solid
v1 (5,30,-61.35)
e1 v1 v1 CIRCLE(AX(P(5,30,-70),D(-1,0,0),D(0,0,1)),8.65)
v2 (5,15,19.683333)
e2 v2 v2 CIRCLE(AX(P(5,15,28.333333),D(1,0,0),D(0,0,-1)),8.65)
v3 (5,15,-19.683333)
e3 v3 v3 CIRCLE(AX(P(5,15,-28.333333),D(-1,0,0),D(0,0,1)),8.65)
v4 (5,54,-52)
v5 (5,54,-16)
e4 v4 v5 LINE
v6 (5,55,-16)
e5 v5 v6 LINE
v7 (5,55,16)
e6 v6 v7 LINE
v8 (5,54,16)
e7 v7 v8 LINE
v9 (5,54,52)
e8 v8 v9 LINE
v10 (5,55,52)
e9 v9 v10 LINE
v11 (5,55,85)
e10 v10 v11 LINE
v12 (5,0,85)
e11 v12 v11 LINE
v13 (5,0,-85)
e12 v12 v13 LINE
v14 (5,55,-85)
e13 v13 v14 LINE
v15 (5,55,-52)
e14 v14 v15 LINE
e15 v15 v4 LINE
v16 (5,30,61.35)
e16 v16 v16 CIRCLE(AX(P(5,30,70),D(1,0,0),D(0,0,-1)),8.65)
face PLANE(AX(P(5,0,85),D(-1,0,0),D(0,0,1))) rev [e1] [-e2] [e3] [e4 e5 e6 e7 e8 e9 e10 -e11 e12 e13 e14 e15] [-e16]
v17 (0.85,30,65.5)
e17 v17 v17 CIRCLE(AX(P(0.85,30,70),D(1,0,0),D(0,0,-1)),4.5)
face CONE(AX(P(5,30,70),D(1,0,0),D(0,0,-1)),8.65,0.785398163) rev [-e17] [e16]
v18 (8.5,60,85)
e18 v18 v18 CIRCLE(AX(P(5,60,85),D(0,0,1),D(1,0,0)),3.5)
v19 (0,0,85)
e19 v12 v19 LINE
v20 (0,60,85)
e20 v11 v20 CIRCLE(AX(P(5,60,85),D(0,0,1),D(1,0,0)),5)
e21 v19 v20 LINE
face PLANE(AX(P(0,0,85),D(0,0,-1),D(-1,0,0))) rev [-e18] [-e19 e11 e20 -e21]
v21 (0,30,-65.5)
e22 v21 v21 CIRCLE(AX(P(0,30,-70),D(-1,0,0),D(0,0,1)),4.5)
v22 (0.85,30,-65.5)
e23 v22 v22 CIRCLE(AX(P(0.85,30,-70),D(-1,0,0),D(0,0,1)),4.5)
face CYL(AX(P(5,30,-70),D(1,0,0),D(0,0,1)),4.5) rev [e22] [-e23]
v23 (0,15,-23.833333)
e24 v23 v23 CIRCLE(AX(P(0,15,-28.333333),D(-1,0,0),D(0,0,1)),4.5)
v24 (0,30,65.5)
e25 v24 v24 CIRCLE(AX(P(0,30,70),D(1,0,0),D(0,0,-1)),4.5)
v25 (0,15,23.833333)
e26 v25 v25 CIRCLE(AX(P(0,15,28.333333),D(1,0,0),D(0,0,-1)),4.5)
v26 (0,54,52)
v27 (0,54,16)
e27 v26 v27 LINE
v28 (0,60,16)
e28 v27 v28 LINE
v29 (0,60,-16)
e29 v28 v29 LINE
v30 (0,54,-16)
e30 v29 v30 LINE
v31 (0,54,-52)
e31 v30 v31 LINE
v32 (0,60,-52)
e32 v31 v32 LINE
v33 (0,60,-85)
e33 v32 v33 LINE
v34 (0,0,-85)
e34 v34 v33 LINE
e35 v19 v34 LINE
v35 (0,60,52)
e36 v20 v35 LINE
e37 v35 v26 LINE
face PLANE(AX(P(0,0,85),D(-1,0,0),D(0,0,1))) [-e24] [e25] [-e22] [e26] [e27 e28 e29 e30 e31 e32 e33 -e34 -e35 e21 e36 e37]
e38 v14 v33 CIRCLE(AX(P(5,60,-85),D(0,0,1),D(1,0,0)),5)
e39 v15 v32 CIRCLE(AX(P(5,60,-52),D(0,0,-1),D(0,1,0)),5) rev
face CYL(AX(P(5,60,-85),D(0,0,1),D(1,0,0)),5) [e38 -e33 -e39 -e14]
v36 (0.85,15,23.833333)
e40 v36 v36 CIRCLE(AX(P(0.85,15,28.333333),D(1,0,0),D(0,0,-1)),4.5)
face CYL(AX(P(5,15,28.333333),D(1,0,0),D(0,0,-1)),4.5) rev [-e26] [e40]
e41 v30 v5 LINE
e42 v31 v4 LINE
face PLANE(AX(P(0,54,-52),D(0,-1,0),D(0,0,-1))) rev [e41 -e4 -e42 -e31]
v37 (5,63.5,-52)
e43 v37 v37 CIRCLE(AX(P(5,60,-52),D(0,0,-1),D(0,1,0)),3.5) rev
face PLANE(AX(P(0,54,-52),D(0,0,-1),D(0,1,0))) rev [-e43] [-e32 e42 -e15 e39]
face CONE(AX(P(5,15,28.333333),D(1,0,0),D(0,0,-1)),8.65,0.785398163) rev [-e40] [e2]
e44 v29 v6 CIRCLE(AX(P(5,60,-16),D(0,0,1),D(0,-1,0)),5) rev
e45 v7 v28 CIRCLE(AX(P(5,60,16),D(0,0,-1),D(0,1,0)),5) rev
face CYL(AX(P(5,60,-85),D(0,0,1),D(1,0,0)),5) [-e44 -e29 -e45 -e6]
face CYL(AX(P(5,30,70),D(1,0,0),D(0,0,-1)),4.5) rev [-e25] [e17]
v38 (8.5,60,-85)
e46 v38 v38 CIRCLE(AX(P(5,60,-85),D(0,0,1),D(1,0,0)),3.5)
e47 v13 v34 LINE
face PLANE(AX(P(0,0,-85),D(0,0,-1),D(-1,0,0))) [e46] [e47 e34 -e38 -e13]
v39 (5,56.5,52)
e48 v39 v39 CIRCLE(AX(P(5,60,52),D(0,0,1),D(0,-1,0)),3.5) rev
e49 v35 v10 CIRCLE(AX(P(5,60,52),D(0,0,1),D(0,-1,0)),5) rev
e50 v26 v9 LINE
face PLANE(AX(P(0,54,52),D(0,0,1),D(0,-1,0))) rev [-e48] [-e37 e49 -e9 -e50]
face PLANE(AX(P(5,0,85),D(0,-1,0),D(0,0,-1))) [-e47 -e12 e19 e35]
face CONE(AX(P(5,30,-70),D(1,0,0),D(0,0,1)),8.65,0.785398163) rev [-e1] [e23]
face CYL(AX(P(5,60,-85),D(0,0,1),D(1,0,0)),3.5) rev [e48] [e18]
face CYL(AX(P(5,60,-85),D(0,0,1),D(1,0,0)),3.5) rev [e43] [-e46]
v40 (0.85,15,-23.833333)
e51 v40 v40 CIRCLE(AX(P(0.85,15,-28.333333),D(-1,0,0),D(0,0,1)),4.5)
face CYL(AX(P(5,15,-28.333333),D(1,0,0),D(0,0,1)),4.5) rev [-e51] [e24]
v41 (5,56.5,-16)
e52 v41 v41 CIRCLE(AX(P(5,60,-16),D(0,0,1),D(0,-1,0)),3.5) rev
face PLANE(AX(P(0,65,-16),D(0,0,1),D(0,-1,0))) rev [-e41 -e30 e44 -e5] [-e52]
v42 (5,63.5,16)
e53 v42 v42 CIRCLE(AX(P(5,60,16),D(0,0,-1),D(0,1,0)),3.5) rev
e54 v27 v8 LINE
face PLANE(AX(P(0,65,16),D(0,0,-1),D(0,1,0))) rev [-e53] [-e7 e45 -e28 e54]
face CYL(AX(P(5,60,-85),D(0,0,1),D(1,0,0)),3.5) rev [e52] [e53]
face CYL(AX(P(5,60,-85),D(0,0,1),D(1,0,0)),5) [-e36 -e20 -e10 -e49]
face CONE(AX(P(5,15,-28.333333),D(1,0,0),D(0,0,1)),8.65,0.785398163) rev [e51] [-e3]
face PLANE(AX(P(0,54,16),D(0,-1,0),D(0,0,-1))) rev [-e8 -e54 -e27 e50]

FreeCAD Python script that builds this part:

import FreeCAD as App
import Part
import Sketcher

V = App.Vector
Q = App.Units.Quantity

doc = App.newDocument("Part")
body = doc.addObject("PartDesign::Body", "Body")

# Sketch on XY plane
sketch1 = doc.addObject("Sketcher::SketchObject", "Sketch")
body.addObject(sketch1)
sketch1.AttachmentSupport = (doc.XY_Plane, [""])
sketch1.MapMode = "FlatFace"
sketch1.addGeometry([
    Part.LineSegment(V(0, 60, 0), V(0, 0, 0)),
    Part.LineSegment(V(0, 0, 0), V(5, 0, 0)),
    Part.LineSegment(V(5, 0, 0), V(5, 60, 0)),
    Part.LineSegment(V(5, 60, 0), V(0, 60, 0)),
], False)
sketch1.addConstraint([
    Sketcher.Constraint("Coincident", 0, 2, 1, 1),
    Sketcher.Constraint("Coincident", 1, 2, 2, 1),
    Sketcher.Constraint("Coincident", 2, 2, 3, 1),
    Sketcher.Constraint("Coincident", 3, 2, 0, 1),
    Sketcher.Constraint("Vertical", 0),
    Sketcher.Constraint("Horizontal", 1),
    Sketcher.Constraint("Vertical", 2),
    Sketcher.Constraint("Horizontal", 3),
    Sketcher.Constraint("Coincident", 0, 2, -1, 1),
    Sketcher.Constraint("DistanceX", 1, 1, 1, 2, 5.0),
    Sketcher.Constraint("DistanceY", 0, 2, 0, 1, 60.0),
])
pad1 = doc.addObject("PartDesign::Pad", "Pad")
body.addObject(pad1)
pad1.Profile = sketch1
pad1.Length = 170
pad1.Midplane = True

# Sketch on XY plane
sketch2 = doc.addObject("Sketcher::SketchObject", "Sketch001")
body.addObject(sketch2)
sketch2.AttachmentSupport = (doc.XY_Plane, [""])
sketch2.MapMode = "FlatFace"
sketch2.AttachmentOffset = App.Placement(V(0, 0, 85), App.Rotation())
sketch2.addGeometry(Part.Circle(V(5, 60, 0), V(0, 0, 1), 5), False)
sketch2.addConstraint([
    Sketcher.Constraint("Diameter", 0, 10.0),
    Sketcher.Constraint("DistanceX", -1, 1, 0, 3, 5.0),
    Sketcher.Constraint("DistanceY", -1, 1, 0, 3, 60.0),
])

# Sketch on XZ plane
sketch3 = doc.addObject("Sketcher::SketchObject", "Sketch002")
body.addObject(sketch3)
sketch3.AttachmentSupport = (doc.XZ_Plane, [""])
sketch3.MapMode = "FlatFace"
sketch3.AttachmentOffset = App.Placement(V(0, 0, -60), App.Rotation())
sketch3.addGeometry(Part.LineSegment(V(5, 85, 0), V(5, -85, 0)), False)
sketch3.addConstraint([
    Sketcher.Constraint("Vertical", 0),
    Sketcher.Constraint("DistanceY", 0, 2, 0, 1, 170.0),
    Sketcher.Constraint("DistanceX", -1, 1, 0, 1, 5.0),
    Sketcher.Constraint("DistanceY", -1, 1, 0, 1, 85.0),
])
doc.recompute()

additivepipe = doc.addObject("PartDesign::AdditivePipe", "AdditivePipe")
body.addObject(additivepipe)
additivepipe.Profile = sketch2
additivepipe.Spine = (sketch3, ["Edge1"])

# Sketch on XY plane
sketch4 = doc.addObject("Sketcher::SketchObject", "Sketch003")
body.addObject(sketch4)
sketch4.AttachmentSupport = (doc.XY_Plane, [""])
sketch4.MapMode = "FlatFace"
sketch4.AttachmentOffset = App.Placement(V(0, 0, 85), App.Rotation())
sketch4.addGeometry(Part.Circle(V(5, 60, 0), V(0, 0, 1), 3.5), False)
sketch4.addConstraint([
    Sketcher.Constraint("Diameter", 0, 7.0),
    Sketcher.Constraint("DistanceX", -1, 1, 0, 3, 5.0),
    Sketcher.Constraint("DistanceY", -1, 1, 0, 3, 60.0),
])
pocket1 = doc.addObject("PartDesign::Pocket", "Pocket")
body.addObject(pocket1)
pocket1.Profile = sketch4
pocket1.Type = "ThroughAll"

# Sketch on XZ plane
sketch5 = doc.addObject("Sketcher::SketchObject", "Sketch004")
body.addObject(sketch5)
sketch5.AttachmentSupport = (doc.XZ_Plane, [""])
sketch5.MapMode = "FlatFace"
sketch5.AttachmentOffset = App.Placement(V(0, 0, -30), App.Rotation())
sketch5.addGeometry([
    Part.LineSegment(V(0, 70, 0), V(5, 70, 0)),  # 0
    Part.LineSegment(V(5, 70, 0), V(5, 61.35, 0)),  # 1
    Part.LineSegment(V(5, 61.35, 0), V(0.85, 65.5, 0)),  # 2
    Part.LineSegment(V(0.85, 65.5, 0), V(0, 65.5, 0)),  # 3
    Part.LineSegment(V(0, 65.5, 0), V(0, 70, 0)),  # 4
], False)
sketch5.addGeometry(Part.LineSegment(V(5, 70, 0), V(0, 70, 0)), True)  # axis
sketch5.addConstraint([
    Sketcher.Constraint("Coincident", 0, 2, 1, 1),
    Sketcher.Constraint("Coincident", 1, 2, 2, 1),
    Sketcher.Constraint("Coincident", 2, 2, 3, 1),
    Sketcher.Constraint("Coincident", 3, 2, 4, 1),
    Sketcher.Constraint("Coincident", 4, 2, 0, 1),
    Sketcher.Constraint("Horizontal", 0),
    Sketcher.Constraint("Vertical", 1),
    Sketcher.Constraint("Horizontal", 3),
    Sketcher.Constraint("Vertical", 4),
    Sketcher.Constraint("Horizontal", 5),
    Sketcher.Constraint("Coincident", 5, 1, 0, 2),
    Sketcher.Constraint("PointOnObject", 3, 2, -2),
    Sketcher.Constraint("PointOnObject", 5, 2, -2),
    Sketcher.Constraint("DistanceX", 0, 1, 0, 2, 5.0),
    Sketcher.Constraint("Angle", 2, Q("135 deg")),
    Sketcher.Constraint("DistanceY", 4, 1, 4, 2, 4.5),
    Sketcher.Constraint("DistanceY", -1, 1, 0, 2, 70.0),
    Sketcher.Constraint("DistanceX", 3, 2, 3, 1, 0.85),
])
groove = doc.addObject("PartDesign::Groove", "Groove")
body.addObject(groove)
groove.Profile = sketch5
groove.ReferenceAxis = (sketch5, ["Axis0"])
groove.Angle = 360
doc.recompute()

datumline = doc.addObject("PartDesign::Line", "DatumLine")
body.addObject(datumline)
datumline.Placement = App.Placement(V(0, 0, 0), App.Rotation(V(0, 0, 1), V(0, -0.338719468, -0.940887412)))
linearpattern = doc.addObject("PartDesign::LinearPattern", "LinearPattern")
body.addObject(linearpattern)
linearpattern.Originals = [groove]
linearpattern.Direction = (datumline, [""])
linearpattern.Mode = "offset"
linearpattern.Offset = 44.284434
linearpattern.Occurrences = 2
body.Tip = linearpattern
doc.recompute()

mirrored = doc.addObject("PartDesign::Mirrored", "Mirrored")
body.addObject(mirrored)
mirrored.Originals = [groove]
mirrored.MirrorPlane = (doc.XY_Plane, [""])
body.Tip = mirrored

# Sketch on XZ plane
sketch6 = doc.addObject("Sketcher::SketchObject", "Sketch005")
body.addObject(sketch6)
sketch6.AttachmentSupport = (doc.XZ_Plane, [""])
sketch6.MapMode = "FlatFace"
sketch6.AttachmentOffset = App.Placement(V(0, 0, -15), App.Rotation())
sketch6.addGeometry([
    Part.LineSegment(V(5, -28.333333, 0), V(0, -28.333333, 0)),  # 0
    Part.LineSegment(V(0, -28.333333, 0), V(0, -23.833333, 0)),  # 1
    Part.LineSegment(V(0, -23.833333, 0), V(0.85, -23.833333, 0)),  # 2
    Part.LineSegment(V(0.85, -23.833333, 0), V(5, -19.683333, 0)),  # 3
    Part.LineSegment(V(5, -19.683333, 0), V(5, -28.333333, 0)),  # 4
], False)
sketch6.addGeometry(Part.LineSegment(V(0, -28.333333, 0), V(5, -28.333333, 0)), True)  # axis
sketch6.addConstraint([
    Sketcher.Constraint("Coincident", 0, 2, 1, 1),
    Sketcher.Constraint("Coincident", 1, 2, 2, 1),
    Sketcher.Constraint("Coincident", 2, 2, 3, 1),
    Sketcher.Constraint("Coincident", 3, 2, 4, 1),
    Sketcher.Constraint("Coincident", 4, 2, 0, 1),
    Sketcher.Constraint("Horizontal", 0),
    Sketcher.Constraint("Vertical", 1),
    Sketcher.Constraint("Horizontal", 2),
    Sketcher.Constraint("Vertical", 4),
    Sketcher.Constraint("Horizontal", 5),
    Sketcher.Constraint("Coincident", 5, 1, 0, 2),
    Sketcher.Constraint("PointOnObject", 0, 2, -2),
    Sketcher.Constraint("Vertical", 3, 2, 5, 2),
    Sketcher.Constraint("DistanceX", 0, 2, 0, 1, 5.0),
    Sketcher.Constraint("Angle", 3, Q("45 deg")),
    Sketcher.Constraint("DistanceY", 1, 1, 1, 2, 4.5),
    Sketcher.Constraint("DistanceX", 2, 1, 2, 2, 0.85),
    Sketcher.Constraint("DistanceY", 0, 2, -1, 1, 28.333333),
])
groove2 = doc.addObject("PartDesign::Groove", "Groove001")
body.addObject(groove2)
groove2.Profile = sketch6
groove2.ReferenceAxis = (sketch6, ["Axis0"])
groove2.Angle = 360

# Sketch on YZ plane
sketch7 = doc.addObject("Sketcher::SketchObject", "Sketch006")
body.addObject(sketch7)
sketch7.AttachmentSupport = (doc.YZ_Plane, [""])
sketch7.MapMode = "FlatFace"
sketch7.AttachmentOffset = App.Placement(V(0, 0, 5), App.Rotation())
sketch7.addGeometry([
    Part.LineSegment(V(65, -16, 0), V(54, -16, 0)),  # 0
    Part.LineSegment(V(54, -16, 0), V(54, -52, 0)),  # 1
    Part.LineSegment(V(54, -52, 0), V(65, -52, 0)),  # 2
    Part.LineSegment(V(65, -52, 0), V(65, -16, 0)),  # 3
    Part.LineSegment(V(65, 52, 0), V(54, 52, 0)),  # 4
    Part.LineSegment(V(54, 52, 0), V(54, 16, 0)),  # 5
    Part.LineSegment(V(54, 16, 0), V(65, 16, 0)),  # 6
    Part.LineSegment(V(65, 16, 0), V(65, 52, 0)),  # 7
], False)
sketch7.addConstraint([
    Sketcher.Constraint("Coincident", 0, 2, 1, 1),
    Sketcher.Constraint("Coincident", 1, 2, 2, 1),
    Sketcher.Constraint("Coincident", 2, 2, 3, 1),
    Sketcher.Constraint("Coincident", 3, 2, 0, 1),
    Sketcher.Constraint("Coincident", 4, 2, 5, 1),
    Sketcher.Constraint("Coincident", 5, 2, 6, 1),
    Sketcher.Constraint("Coincident", 6, 2, 7, 1),
    Sketcher.Constraint("Coincident", 7, 2, 4, 1),
    Sketcher.Constraint("Horizontal", 0),
    Sketcher.Constraint("Vertical", 1),
    Sketcher.Constraint("Horizontal", 2),
    Sketcher.Constraint("Vertical", 3),
    Sketcher.Constraint("Horizontal", 4),
    Sketcher.Constraint("Vertical", 5),
    Sketcher.Constraint("Horizontal", 6),
    Sketcher.Constraint("Vertical", 7),
    Sketcher.Constraint("Symmetric", 1, 2, 4, 2, -1),
    Sketcher.Constraint("Symmetric", 3, 2, 6, 2, -1),
    Sketcher.Constraint("DistanceX", 0, 2, 0, 1, 11.0),
    Sketcher.Constraint("DistanceY", 1, 2, 1, 1, 36.0),
    Sketcher.Constraint("DistanceX", -1, 1, 0, 2, 54.0),
    Sketcher.Constraint("DistanceY", 0, 2, -1, 1, 16.0),
])
pocket2 = doc.addObject("PartDesign::Pocket", "Pocket001")
body.addObject(pocket2)
pocket2.Profile = sketch7
pocket2.Type = "ThroughAll"
pocket2.Midplane = True

doc.recompute()
